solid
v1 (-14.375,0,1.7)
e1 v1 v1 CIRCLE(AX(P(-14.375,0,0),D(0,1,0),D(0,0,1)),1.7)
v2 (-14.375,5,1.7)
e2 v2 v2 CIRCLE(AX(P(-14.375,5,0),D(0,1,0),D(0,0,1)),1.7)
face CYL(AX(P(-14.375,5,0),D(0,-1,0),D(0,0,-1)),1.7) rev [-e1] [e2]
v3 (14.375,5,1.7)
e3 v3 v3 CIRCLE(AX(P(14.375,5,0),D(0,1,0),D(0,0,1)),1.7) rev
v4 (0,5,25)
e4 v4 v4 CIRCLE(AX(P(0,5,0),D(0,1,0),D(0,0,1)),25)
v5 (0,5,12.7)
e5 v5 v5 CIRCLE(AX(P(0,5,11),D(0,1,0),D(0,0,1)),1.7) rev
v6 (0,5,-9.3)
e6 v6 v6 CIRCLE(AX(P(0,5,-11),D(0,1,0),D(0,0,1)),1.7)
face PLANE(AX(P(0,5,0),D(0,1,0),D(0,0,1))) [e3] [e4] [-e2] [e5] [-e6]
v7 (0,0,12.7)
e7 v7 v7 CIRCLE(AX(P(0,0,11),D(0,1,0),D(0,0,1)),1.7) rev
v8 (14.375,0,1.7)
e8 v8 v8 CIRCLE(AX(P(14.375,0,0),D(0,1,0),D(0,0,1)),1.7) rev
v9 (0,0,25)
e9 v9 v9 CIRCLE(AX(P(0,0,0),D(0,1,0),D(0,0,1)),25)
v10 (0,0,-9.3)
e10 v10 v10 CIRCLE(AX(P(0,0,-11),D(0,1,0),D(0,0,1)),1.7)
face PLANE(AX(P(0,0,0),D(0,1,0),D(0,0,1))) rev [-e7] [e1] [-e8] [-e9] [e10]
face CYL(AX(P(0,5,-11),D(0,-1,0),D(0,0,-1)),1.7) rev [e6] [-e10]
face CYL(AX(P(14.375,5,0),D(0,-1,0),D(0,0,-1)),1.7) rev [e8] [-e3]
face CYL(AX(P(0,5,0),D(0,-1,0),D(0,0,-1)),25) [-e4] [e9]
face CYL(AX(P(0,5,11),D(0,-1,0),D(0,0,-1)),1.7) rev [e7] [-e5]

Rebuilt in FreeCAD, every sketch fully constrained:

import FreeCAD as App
import Part
import Sketcher

doc = App.newDocument("Part")
body = doc.addObject("PartDesign::Body", "Body")

# Sketch on XZ plane
sketch1 = doc.addObject("Sketcher::SketchObject", "Sketch")
body.addObject(sketch1)
sketch1.AttachmentSupport = (doc.XZ_Plane, [""])
sketch1.MapMode = "FlatFace"
sketch1.addGeometry([
    Part.Circle(App.Vector(0, 0, 0), App.Vector(0, 0, 1), 25),  # 0
    Part.Circle(App.Vector(0, -11, 0), App.Vector(0, 0, 1), 1.7),  # 1
    Part.Circle(App.Vector(-14.4, 0, 0), App.Vector(0, 0, 1), 1.7),  # 2
    Part.Circle(App.Vector(14.4, 0, 0), App.Vector(0, 0, 1), 1.7),  # 3
    Part.Circle(App.Vector(0, 11, 0), App.Vector(0, 0, 1), 1.7),  # 4
], False)
sketch1.addConstraint([
    Sketcher.Constraint("Coincident", 0, 3, -1, 1),
    Sketcher.Constraint("Equal", 1, 2),
    Sketcher.Constraint("Equal", 2, 3),
    Sketcher.Constraint("Equal", 3, 4),
    Sketcher.Constraint("Symmetric", 2, 3, 3, 3, -1, 1),
    Sketcher.Constraint("Symmetric", 1, 3, 4, 3, -1, 1),
    Sketcher.Constraint("PointOnObject", 1, 3, -2),
    Sketcher.Constraint("PointOnObject", 2, 3, -1),
    Sketcher.Constraint("Diameter", 0, 50.0),
    Sketcher.Constraint("Diameter", 1, 3.4),
    Sketcher.Constraint("DistanceY", 1, 3, -1, 1, 11.0),
    Sketcher.Constraint("DistanceX", 2, 3, 3, 3, 28.75),
])
pad1 = doc.addObject("PartDesign::Pad", "Pad")
body.addObject(pad1)
pad1.Profile = sketch1
pad1.Length = 5
pad1.Reversed = True

doc.recompute()
